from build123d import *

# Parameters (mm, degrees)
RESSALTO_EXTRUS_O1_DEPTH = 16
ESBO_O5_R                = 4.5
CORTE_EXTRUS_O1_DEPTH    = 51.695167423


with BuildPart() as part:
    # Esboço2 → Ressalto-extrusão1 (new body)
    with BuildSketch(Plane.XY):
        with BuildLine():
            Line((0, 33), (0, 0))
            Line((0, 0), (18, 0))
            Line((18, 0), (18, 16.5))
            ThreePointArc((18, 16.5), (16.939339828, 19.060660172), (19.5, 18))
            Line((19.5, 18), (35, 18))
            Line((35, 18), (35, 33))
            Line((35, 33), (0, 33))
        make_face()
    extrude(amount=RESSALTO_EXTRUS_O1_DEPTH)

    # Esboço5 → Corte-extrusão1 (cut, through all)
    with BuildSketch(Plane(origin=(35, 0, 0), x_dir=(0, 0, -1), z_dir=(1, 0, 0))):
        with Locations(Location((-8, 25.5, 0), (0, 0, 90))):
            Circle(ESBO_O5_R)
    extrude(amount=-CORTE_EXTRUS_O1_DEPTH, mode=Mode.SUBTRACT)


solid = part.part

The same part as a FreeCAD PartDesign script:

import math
import FreeCAD as App
import Part
import Sketcher
from FreeCAD import Vector

doc = App.newDocument("Part")
body = doc.addObject("PartDesign::Body", "Body")

sketch1 = body.newObject("Sketcher::SketchObject", "Sketch")
sketch1.AttachmentSupport = (doc.getObject("XY_Plane"), [""])
sketch1.MapMode = "FlatFace"
sketch1.addGeometry(Part.LineSegment(Vector(0, 33, 0), Vector(0, 0, 0)), False)
sketch1.addGeometry(Part.LineSegment(Vector(0, 0, 0), Vector(18, 0, 0)), False)
sketch1.addGeometry(Part.LineSegment(Vector(18, 0, 0), Vector(18, 16.5, 0)), False)
sketch1.addGeometry(Part.ArcOfCircle(Part.Circle(Vector(18, 18, 0), Vector(0, 0, 1), 1.5), math.radians(0), math.radians(270)), False)
sketch1.addGeometry(Part.LineSegment(Vector(19.5, 18, 0), Vector(35, 18, 0)), False)
sketch1.addGeometry(Part.LineSegment(Vector(35, 18, 0), Vector(35, 33, 0)), False)
sketch1.addGeometry(Part.LineSegment(Vector(35, 33, 0), Vector(0, 33, 0)), False)
sketch1.addConstraint(Sketcher.Constraint("Coincident", 0, 2, 1, 1))
sketch1.addConstraint(Sketcher.Constraint("Coincident", 1, 2, 2, 1))
sketch1.addConstraint(Sketcher.Constraint("Coincident", 2, 2, 3, 2))
sketch1.addConstraint(Sketcher.Constraint("Coincident", 3, 1, 4, 1))
sketch1.addConstraint(Sketcher.Constraint("Coincident", 4, 2, 5, 1))
sketch1.addConstraint(Sketcher.Constraint("Coincident", 5, 2, 6, 1))
sketch1.addConstraint(Sketcher.Constraint("Coincident", 6, 2, 0, 1))
sketch1.addConstraint(Sketcher.Constraint("Vertical", 0))
sketch1.addConstraint(Sketcher.Constraint("Horizontal", 1))
sketch1.addConstraint(Sketcher.Constraint("Vertical", 2))
sketch1.addConstraint(Sketcher.Constraint("Horizontal", 4))
sketch1.addConstraint(Sketcher.Constraint("Vertical", 5))
sketch1.addConstraint(Sketcher.Constraint("Horizontal", 6))
sketch1.addConstraint(Sketcher.Constraint("Coincident", 0, 2, -1, 1))
sketch1.addConstraint(Sketcher.Constraint("Vertical", 3, 3, 1, 2))
sketch1.addConstraint(Sketcher.Constraint("Radius", 3, 1.5))
sketch1.addConstraint(Sketcher.Constraint("DistanceX", 1, 1, 1, 2, 18.0))
sketch1.addConstraint(Sketcher.Constraint("DistanceX", 6, 2, 6, 1, 35.0))
sketch1.addConstraint(Sketcher.Constraint("DistanceY", 0, 2, 0, 1, 33.0))
sketch1.addConstraint(Sketcher.Constraint("DistanceY", 5, 1, 5, 2, 15.0))
sketch1.addConstraint(Sketcher.Constraint("DistanceY", 2, 1, 2, 2, 16.5))
pad1 = body.newObject("PartDesign::Pad", "Pad")
pad1.Profile = sketch1
pad1.Length = 16

sketch2 = body.newObject("Sketcher::SketchObject", "Sketch001")
sketch2.AttachmentSupport = (doc.getObject("YZ_Plane"), [""])
sketch2.MapMode = "FlatFace"
sketch2.AttachmentOffset = App.Placement(Vector(0, 0, 35), App.Rotation())
sketch2.addGeometry(Part.Circle(Vector(25.5, 8, 0), Vector(0, 0, 1), 4.5), False)
sketch2.addConstraint(Sketcher.Constraint("Diameter", 0, 9.0))
sketch2.addConstraint(Sketcher.Constraint("DistanceY", -1, 1, 0, 3, 8.0))
sketch2.addConstraint(Sketcher.Constraint("DistanceX", -1, 1, 0, 3, 25.5))
pocket1 = body.newObject("PartDesign::Pocket", "Pocket")
pocket1.Profile = sketch2
pocket1.Type = "ThroughAll"

doc.recompute()
